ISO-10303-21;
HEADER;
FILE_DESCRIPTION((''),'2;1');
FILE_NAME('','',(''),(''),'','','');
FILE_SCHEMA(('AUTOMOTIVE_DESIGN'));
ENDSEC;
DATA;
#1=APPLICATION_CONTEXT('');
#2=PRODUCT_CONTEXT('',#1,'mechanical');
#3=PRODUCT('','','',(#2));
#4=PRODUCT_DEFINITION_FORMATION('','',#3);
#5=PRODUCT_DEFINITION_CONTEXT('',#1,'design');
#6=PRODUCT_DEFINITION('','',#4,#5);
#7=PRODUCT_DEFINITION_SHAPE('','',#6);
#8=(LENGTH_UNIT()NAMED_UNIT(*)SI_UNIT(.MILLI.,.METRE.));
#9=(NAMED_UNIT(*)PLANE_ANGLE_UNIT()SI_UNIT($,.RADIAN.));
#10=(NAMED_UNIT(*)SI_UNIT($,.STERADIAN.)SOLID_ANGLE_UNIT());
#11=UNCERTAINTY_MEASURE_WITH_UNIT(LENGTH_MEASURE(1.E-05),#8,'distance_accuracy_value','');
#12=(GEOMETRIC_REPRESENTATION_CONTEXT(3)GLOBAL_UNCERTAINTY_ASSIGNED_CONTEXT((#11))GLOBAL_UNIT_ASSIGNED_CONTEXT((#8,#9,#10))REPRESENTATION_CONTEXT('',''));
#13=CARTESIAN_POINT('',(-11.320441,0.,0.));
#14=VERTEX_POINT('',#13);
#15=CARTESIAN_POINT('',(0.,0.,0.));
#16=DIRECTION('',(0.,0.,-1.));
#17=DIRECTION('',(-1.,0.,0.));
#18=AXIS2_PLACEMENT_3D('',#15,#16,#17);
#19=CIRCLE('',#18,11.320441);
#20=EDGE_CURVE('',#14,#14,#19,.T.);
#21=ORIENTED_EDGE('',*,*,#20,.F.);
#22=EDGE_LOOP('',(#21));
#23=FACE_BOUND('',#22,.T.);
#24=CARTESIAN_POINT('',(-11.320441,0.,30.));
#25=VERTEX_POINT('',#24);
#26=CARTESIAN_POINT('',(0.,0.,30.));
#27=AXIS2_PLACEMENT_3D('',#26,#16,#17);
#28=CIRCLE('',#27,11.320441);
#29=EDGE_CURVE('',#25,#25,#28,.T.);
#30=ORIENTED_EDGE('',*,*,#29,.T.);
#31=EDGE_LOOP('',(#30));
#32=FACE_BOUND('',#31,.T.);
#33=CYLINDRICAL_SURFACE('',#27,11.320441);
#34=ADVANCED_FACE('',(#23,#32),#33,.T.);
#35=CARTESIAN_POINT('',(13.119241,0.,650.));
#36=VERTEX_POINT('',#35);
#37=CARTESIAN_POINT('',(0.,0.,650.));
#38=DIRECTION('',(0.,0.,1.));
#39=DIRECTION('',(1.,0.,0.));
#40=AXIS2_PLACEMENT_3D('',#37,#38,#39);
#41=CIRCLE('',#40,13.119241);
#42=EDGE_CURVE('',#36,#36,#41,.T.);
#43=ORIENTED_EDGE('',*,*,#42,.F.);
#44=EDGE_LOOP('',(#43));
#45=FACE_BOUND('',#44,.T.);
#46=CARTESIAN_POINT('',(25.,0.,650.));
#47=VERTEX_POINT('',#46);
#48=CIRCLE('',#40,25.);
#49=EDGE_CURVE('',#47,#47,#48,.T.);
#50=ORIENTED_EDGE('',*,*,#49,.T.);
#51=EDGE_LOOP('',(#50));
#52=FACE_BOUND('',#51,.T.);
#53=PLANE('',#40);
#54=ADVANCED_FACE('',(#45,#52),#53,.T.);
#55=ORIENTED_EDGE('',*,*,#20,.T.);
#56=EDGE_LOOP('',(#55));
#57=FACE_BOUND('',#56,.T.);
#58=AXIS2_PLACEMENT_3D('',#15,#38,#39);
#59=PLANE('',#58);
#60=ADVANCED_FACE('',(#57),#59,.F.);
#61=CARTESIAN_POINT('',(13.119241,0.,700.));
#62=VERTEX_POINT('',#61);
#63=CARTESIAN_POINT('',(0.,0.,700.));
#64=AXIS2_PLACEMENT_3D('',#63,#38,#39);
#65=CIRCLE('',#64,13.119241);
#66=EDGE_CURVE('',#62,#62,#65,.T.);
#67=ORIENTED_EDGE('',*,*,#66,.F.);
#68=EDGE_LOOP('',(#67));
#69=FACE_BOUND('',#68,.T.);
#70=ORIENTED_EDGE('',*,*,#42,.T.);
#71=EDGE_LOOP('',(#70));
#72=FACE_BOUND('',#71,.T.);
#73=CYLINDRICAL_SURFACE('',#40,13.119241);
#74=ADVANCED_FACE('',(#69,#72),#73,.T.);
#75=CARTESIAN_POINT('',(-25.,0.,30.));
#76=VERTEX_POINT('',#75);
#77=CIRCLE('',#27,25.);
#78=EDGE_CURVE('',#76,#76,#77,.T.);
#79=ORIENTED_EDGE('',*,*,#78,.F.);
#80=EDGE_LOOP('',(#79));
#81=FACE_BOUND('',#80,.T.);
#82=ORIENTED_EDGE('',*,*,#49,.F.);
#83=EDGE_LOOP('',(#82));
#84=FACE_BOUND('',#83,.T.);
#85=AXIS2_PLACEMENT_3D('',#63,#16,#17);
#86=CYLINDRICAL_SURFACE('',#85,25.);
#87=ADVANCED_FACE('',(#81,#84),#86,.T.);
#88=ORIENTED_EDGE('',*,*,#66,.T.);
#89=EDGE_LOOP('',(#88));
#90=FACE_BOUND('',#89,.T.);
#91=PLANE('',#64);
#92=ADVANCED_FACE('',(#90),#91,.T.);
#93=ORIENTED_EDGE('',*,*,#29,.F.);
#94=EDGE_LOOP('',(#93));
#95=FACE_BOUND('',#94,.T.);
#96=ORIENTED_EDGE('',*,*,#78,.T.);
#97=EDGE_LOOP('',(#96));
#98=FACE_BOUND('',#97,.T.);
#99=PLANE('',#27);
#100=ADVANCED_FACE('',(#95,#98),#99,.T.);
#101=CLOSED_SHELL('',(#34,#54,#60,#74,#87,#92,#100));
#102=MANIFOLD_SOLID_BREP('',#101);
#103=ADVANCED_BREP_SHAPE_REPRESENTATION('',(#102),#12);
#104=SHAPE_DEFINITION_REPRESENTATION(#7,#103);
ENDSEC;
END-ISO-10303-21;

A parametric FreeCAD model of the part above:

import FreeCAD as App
import Part
import Sketcher
from FreeCAD import Vector
Q = App.Units.Quantity

doc = App.newDocument("Part")
body = doc.addObject("PartDesign::Body", "Body")

sketch1 = doc.addObject("Sketcher::SketchObject", "Sketch")
body.addObject(sketch1)
sketch1.AttachmentSupport = (doc.XY_Plane, [""])
sketch1.MapMode = "FlatFace"
sketch1.addGeometry(Part.Circle(Vector(0, 0, 0), Vector(0, 0, 1), 25), False)
sketch1.addConstraint([
    Sketcher.Constraint("Coincident", 0, 3, -1, 1),
    Sketcher.Constraint("Diameter", 0, Q("50 mm")),
])
pad1 = doc.addObject("PartDesign::Pad", "Pad")
body.addObject(pad1)
pad1.Profile = sketch1
pad1.Length = 700

sketch2 = doc.addObject("Sketcher::SketchObject", "Sketch001")
body.addObject(sketch2)
sketch2.AttachmentSupport = (doc.XY_Plane, [""])
sketch2.MapMode = "FlatFace"
sketch2.AttachmentOffset = App.Placement(Vector(0, 0, 650), App.Rotation())
sketch2.addGeometry([
    Part.Circle(Vector(0, 0, 0), Vector(0, 0, 1), 25),
    Part.Circle(Vector(0, 0, 0), Vector(0, 0, 1), 13.119241),
], False)
sketch2.addConstraint([
    Sketcher.Constraint("Coincident", 0, 3, -1, 1),
    Sketcher.Constraint("Coincident", 1, 3, -1, 1),
    Sketcher.Constraint("Diameter", 0, Q("50 mm")),
    Sketcher.Constraint("Diameter", 1, Q("26.238481 mm")),
])
pocket1 = doc.addObject("PartDesign::Pocket", "Pocket")
body.addObject(pocket1)
pocket1.Profile = sketch2
pocket1.Length = 50
pocket1.Reversed = True

sketch3 = doc.addObject("Sketcher::SketchObject", "Sketch002")
body.addObject(sketch3)
sketch3.AttachmentSupport = (doc.XY_Plane, [""])
sketch3.MapMode = "FlatFace"
sketch3.addGeometry([
    Part.Circle(Vector(0, 0, 0), Vector(0, 0, 1), 25),
    Part.Circle(Vector(0, 0, 0), Vector(0, 0, 1), 11.320441),
], False)
sketch3.addConstraint([
    Sketcher.Constraint("Coincident", 0, 3, -1, 1),
    Sketcher.Constraint("Coincident", 1, 3, -1, 1),
    Sketcher.Constraint("Diameter", 0, Q("50 mm")),
    Sketcher.Constraint("Diameter", 1, Q("22.640883 mm")),
])
pocket2 = doc.addObject("PartDesign::Pocket", "Pocket001")
body.addObject(pocket2)
pocket2.Profile = sketch3
pocket2.Length = 30
pocket2.Reversed = True

doc.recompute()
